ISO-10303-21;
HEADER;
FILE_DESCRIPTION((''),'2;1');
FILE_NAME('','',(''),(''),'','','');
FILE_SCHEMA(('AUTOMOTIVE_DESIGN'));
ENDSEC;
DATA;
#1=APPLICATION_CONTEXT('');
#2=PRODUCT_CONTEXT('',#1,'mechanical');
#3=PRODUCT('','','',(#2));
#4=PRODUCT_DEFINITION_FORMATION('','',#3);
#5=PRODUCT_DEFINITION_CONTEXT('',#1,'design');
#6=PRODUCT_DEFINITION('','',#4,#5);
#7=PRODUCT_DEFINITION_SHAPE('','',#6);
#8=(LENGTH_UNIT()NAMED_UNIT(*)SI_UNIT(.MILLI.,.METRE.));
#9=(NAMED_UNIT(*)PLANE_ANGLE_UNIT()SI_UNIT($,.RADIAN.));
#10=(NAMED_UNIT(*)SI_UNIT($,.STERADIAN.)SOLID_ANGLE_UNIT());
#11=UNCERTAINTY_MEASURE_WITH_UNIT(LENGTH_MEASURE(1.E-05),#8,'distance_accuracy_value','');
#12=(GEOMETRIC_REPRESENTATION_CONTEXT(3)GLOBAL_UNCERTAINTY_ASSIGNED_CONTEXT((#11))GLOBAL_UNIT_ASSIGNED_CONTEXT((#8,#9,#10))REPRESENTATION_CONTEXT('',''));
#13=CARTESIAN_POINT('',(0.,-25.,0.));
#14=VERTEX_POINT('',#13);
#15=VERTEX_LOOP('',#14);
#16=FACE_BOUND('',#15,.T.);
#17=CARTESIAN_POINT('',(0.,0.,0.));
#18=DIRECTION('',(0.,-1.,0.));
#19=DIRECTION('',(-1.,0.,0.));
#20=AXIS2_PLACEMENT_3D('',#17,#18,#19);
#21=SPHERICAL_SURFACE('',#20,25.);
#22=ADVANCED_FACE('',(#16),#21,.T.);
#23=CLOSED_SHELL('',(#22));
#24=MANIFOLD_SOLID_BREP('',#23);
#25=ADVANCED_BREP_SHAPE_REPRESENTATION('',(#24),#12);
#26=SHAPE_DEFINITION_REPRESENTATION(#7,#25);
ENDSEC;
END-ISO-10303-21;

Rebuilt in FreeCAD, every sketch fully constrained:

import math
import FreeCAD as App
import Part
import Sketcher
Q = App.Units.Quantity

doc = App.newDocument("Part")
body = doc.addObject("PartDesign::Body", "Body")

sketch1 = body.newObject("Sketcher::SketchObject", "Sketch")
sketch1.AttachmentSupport = (doc.getObject("XY_Plane"), [""])
sketch1.MapMode = "FlatFace"
sketch1.addGeometry(Part.ArcOfCircle(Part.Circle(App.Vector(0, 0, 0), App.Vector(0, 0, 1), 25), math.radians(90), math.radians(270)), False)
sketch1.addGeometry(Part.LineSegment(App.Vector(0, -25, 0), App.Vector(0, 25, 0)), False)
sketch1.addConstraint(Sketcher.Constraint("Coincident", 0, 1, 1, 2))
sketch1.addConstraint(Sketcher.Constraint("Coincident", 1, 1, 0, 2))
sketch1.addConstraint(Sketcher.Constraint("Vertical", 1))
sketch1.addConstraint(Sketcher.Constraint("Coincident", 0, 3, -1, 1))
sketch1.addConstraint(Sketcher.Constraint("PointOnObject", 0, 1, -2))
sketch1.addConstraint(Sketcher.Constraint("Radius", 0, Q("25 mm")))
revolution = body.newObject("PartDesign::Revolution", "Revolution")
revolution.Profile = sketch1
revolution.ReferenceAxis = (sketch1, ["V_Axis"])
revolution.Angle = 360

doc.recompute()
